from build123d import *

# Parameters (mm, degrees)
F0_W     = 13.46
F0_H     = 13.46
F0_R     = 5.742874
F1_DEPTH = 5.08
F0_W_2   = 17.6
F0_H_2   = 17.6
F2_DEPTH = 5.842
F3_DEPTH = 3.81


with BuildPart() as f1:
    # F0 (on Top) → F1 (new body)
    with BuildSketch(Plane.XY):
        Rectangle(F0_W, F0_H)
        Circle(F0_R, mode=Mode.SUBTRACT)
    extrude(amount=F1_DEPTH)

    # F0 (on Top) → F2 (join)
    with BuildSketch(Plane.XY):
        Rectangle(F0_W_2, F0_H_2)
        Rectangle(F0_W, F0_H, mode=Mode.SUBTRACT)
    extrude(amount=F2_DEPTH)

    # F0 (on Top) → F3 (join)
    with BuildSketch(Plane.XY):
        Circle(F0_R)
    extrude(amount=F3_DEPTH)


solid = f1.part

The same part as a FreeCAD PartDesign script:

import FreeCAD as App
import Part
import Sketcher
from FreeCAD import Vector
Q = App.Units.Quantity

doc = App.newDocument("Part")
params = doc.addObject("Spreadsheet::Sheet", "Params")
for row, (alias, value) in enumerate([
    ("pad1_length", "0.2 in"),
    ("pad2_length", "0.23 in"),
    ("pad3_length", "0.15 in"),
], start=1):
    params.set(f"A{row}", alias)
    params.set(f"B{row}", "=" + value)
    params.setAlias(f"B{row}", alias)

body = doc.addObject("PartDesign::Body", "Body")

# Sketch on XY plane
sketch1 = body.newObject("Sketcher::SketchObject", "Sketch")
sketch1.AttachmentSupport = (doc.getObject("XY_Plane"), [""])
sketch1.MapMode = "FlatFace"
sketch1.addGeometry([
    Part.LineSegment(Vector(-7, 7, 0), Vector(-7, -7, 0)),  # 0
    Part.LineSegment(Vector(-7, -7, 0), Vector(7, -7, 0)),  # 1
    Part.LineSegment(Vector(7, -7, 0), Vector(7, 7, 0)),  # 2
    Part.LineSegment(Vector(7, 7, 0), Vector(-7, 7, 0)),  # 3
    Part.Circle(Vector(0, 0, 0), Vector(0, 0, 1), 6),  # 4
], False)
sketch1.addConstraint([
    Sketcher.Constraint("Coincident", 0, 2, 1, 1),
    Sketcher.Constraint("Coincident", 1, 2, 2, 1),
    Sketcher.Constraint("Coincident", 2, 2, 3, 1),
    Sketcher.Constraint("Coincident", 3, 2, 0, 1),
    Sketcher.Constraint("Vertical", 0),
    Sketcher.Constraint("Horizontal", 1),
    Sketcher.Constraint("Vertical", 2),
    Sketcher.Constraint("Horizontal", 3),
    Sketcher.Constraint("Coincident", 4, 3, -1, 1),
    Sketcher.Constraint("Symmetric", 0, 2, 2, 2, -1, 1),
    Sketcher.Constraint("Equal", 3, 0),
    Sketcher.Constraint("Diameter", 4, Q("11.485748 mm")),
    Sketcher.Constraint("DistanceX", 1, 1, 1, 2, Q("13.46 mm")),
])
pad1 = body.newObject("PartDesign::Pad", "Pad")
pad1.Profile = sketch1
pad1.setExpression("Length", "Params.pad1_length")

# Sketch on XY plane
sketch2 = body.newObject("Sketcher::SketchObject", "Sketch001")
sketch2.AttachmentSupport = (doc.getObject("XY_Plane"), [""])
sketch2.MapMode = "FlatFace"
sketch2.addGeometry([
    Part.LineSegment(Vector(-9, 9, 0), Vector(-9, -9, 0)),  # 0
    Part.LineSegment(Vector(-9, -9, 0), Vector(9, -9, 0)),  # 1
    Part.LineSegment(Vector(9, -9, 0), Vector(9, 9, 0)),  # 2
    Part.LineSegment(Vector(9, 9, 0), Vector(-9, 9, 0)),  # 3
    Part.LineSegment(Vector(7, -7, 0), Vector(-7, -7, 0)),  # 4
    Part.LineSegment(Vector(-7, -7, 0), Vector(-7, 7, 0)),  # 5
    Part.LineSegment(Vector(-7, 7, 0), Vector(7, 7, 0)),  # 6
    Part.LineSegment(Vector(7, 7, 0), Vector(7, -7, 0)),  # 7
], False)
sketch2.addConstraint([
    Sketcher.Constraint("Coincident", 0, 2, 1, 1),
    Sketcher.Constraint("Coincident", 1, 2, 2, 1),
    Sketcher.Constraint("Coincident", 2, 2, 3, 1),
    Sketcher.Constraint("Coincident", 3, 2, 0, 1),
    Sketcher.Constraint("Coincident", 4, 2, 5, 1),
    Sketcher.Constraint("Coincident", 5, 2, 6, 1),
    Sketcher.Constraint("Coincident", 6, 2, 7, 1),
    Sketcher.Constraint("Coincident", 7, 2, 4, 1),
    Sketcher.Constraint("Vertical", 0),
    Sketcher.Constraint("Horizontal", 1),
    Sketcher.Constraint("Vertical", 2),
    Sketcher.Constraint("Horizontal", 3),
    Sketcher.Constraint("Horizontal", 4),
    Sketcher.Constraint("Vertical", 5),
    Sketcher.Constraint("Horizontal", 6),
    Sketcher.Constraint("Vertical", 7),
    Sketcher.Constraint("Symmetric", 0, 2, 2, 2, -1, 1),
    Sketcher.Constraint("Symmetric", 4, 2, 6, 2, -1, 1),
    Sketcher.Constraint("Equal", 3, 0),
    Sketcher.Constraint("Equal", 6, 5),
    Sketcher.Constraint("DistanceX", 1, 1, 1, 2, Q("17.6 mm")),
    Sketcher.Constraint("DistanceX", 4, 2, 4, 1, Q("13.46 mm")),
])
pad2 = body.newObject("PartDesign::Pad", "Pad001")
pad2.Profile = sketch2
pad2.setExpression("Length", "Params.pad2_length")

# Sketch on XY plane
sketch3 = body.newObject("Sketcher::SketchObject", "Sketch002")
sketch3.AttachmentSupport = (doc.getObject("XY_Plane"), [""])
sketch3.MapMode = "FlatFace"
sketch3.addGeometry(Part.Circle(Vector(0, 0, 0), Vector(0, 0, 1), 6), False)
sketch3.addConstraint([
    Sketcher.Constraint("Coincident", 0, 3, -1, 1),
    Sketcher.Constraint("Diameter", 0, Q("11.485748 mm")),
])
pad3 = body.newObject("PartDesign::Pad", "Pad002")
pad3.Profile = sketch3
pad3.setExpression("Length", "Params.pad3_length")

doc.recompute()
